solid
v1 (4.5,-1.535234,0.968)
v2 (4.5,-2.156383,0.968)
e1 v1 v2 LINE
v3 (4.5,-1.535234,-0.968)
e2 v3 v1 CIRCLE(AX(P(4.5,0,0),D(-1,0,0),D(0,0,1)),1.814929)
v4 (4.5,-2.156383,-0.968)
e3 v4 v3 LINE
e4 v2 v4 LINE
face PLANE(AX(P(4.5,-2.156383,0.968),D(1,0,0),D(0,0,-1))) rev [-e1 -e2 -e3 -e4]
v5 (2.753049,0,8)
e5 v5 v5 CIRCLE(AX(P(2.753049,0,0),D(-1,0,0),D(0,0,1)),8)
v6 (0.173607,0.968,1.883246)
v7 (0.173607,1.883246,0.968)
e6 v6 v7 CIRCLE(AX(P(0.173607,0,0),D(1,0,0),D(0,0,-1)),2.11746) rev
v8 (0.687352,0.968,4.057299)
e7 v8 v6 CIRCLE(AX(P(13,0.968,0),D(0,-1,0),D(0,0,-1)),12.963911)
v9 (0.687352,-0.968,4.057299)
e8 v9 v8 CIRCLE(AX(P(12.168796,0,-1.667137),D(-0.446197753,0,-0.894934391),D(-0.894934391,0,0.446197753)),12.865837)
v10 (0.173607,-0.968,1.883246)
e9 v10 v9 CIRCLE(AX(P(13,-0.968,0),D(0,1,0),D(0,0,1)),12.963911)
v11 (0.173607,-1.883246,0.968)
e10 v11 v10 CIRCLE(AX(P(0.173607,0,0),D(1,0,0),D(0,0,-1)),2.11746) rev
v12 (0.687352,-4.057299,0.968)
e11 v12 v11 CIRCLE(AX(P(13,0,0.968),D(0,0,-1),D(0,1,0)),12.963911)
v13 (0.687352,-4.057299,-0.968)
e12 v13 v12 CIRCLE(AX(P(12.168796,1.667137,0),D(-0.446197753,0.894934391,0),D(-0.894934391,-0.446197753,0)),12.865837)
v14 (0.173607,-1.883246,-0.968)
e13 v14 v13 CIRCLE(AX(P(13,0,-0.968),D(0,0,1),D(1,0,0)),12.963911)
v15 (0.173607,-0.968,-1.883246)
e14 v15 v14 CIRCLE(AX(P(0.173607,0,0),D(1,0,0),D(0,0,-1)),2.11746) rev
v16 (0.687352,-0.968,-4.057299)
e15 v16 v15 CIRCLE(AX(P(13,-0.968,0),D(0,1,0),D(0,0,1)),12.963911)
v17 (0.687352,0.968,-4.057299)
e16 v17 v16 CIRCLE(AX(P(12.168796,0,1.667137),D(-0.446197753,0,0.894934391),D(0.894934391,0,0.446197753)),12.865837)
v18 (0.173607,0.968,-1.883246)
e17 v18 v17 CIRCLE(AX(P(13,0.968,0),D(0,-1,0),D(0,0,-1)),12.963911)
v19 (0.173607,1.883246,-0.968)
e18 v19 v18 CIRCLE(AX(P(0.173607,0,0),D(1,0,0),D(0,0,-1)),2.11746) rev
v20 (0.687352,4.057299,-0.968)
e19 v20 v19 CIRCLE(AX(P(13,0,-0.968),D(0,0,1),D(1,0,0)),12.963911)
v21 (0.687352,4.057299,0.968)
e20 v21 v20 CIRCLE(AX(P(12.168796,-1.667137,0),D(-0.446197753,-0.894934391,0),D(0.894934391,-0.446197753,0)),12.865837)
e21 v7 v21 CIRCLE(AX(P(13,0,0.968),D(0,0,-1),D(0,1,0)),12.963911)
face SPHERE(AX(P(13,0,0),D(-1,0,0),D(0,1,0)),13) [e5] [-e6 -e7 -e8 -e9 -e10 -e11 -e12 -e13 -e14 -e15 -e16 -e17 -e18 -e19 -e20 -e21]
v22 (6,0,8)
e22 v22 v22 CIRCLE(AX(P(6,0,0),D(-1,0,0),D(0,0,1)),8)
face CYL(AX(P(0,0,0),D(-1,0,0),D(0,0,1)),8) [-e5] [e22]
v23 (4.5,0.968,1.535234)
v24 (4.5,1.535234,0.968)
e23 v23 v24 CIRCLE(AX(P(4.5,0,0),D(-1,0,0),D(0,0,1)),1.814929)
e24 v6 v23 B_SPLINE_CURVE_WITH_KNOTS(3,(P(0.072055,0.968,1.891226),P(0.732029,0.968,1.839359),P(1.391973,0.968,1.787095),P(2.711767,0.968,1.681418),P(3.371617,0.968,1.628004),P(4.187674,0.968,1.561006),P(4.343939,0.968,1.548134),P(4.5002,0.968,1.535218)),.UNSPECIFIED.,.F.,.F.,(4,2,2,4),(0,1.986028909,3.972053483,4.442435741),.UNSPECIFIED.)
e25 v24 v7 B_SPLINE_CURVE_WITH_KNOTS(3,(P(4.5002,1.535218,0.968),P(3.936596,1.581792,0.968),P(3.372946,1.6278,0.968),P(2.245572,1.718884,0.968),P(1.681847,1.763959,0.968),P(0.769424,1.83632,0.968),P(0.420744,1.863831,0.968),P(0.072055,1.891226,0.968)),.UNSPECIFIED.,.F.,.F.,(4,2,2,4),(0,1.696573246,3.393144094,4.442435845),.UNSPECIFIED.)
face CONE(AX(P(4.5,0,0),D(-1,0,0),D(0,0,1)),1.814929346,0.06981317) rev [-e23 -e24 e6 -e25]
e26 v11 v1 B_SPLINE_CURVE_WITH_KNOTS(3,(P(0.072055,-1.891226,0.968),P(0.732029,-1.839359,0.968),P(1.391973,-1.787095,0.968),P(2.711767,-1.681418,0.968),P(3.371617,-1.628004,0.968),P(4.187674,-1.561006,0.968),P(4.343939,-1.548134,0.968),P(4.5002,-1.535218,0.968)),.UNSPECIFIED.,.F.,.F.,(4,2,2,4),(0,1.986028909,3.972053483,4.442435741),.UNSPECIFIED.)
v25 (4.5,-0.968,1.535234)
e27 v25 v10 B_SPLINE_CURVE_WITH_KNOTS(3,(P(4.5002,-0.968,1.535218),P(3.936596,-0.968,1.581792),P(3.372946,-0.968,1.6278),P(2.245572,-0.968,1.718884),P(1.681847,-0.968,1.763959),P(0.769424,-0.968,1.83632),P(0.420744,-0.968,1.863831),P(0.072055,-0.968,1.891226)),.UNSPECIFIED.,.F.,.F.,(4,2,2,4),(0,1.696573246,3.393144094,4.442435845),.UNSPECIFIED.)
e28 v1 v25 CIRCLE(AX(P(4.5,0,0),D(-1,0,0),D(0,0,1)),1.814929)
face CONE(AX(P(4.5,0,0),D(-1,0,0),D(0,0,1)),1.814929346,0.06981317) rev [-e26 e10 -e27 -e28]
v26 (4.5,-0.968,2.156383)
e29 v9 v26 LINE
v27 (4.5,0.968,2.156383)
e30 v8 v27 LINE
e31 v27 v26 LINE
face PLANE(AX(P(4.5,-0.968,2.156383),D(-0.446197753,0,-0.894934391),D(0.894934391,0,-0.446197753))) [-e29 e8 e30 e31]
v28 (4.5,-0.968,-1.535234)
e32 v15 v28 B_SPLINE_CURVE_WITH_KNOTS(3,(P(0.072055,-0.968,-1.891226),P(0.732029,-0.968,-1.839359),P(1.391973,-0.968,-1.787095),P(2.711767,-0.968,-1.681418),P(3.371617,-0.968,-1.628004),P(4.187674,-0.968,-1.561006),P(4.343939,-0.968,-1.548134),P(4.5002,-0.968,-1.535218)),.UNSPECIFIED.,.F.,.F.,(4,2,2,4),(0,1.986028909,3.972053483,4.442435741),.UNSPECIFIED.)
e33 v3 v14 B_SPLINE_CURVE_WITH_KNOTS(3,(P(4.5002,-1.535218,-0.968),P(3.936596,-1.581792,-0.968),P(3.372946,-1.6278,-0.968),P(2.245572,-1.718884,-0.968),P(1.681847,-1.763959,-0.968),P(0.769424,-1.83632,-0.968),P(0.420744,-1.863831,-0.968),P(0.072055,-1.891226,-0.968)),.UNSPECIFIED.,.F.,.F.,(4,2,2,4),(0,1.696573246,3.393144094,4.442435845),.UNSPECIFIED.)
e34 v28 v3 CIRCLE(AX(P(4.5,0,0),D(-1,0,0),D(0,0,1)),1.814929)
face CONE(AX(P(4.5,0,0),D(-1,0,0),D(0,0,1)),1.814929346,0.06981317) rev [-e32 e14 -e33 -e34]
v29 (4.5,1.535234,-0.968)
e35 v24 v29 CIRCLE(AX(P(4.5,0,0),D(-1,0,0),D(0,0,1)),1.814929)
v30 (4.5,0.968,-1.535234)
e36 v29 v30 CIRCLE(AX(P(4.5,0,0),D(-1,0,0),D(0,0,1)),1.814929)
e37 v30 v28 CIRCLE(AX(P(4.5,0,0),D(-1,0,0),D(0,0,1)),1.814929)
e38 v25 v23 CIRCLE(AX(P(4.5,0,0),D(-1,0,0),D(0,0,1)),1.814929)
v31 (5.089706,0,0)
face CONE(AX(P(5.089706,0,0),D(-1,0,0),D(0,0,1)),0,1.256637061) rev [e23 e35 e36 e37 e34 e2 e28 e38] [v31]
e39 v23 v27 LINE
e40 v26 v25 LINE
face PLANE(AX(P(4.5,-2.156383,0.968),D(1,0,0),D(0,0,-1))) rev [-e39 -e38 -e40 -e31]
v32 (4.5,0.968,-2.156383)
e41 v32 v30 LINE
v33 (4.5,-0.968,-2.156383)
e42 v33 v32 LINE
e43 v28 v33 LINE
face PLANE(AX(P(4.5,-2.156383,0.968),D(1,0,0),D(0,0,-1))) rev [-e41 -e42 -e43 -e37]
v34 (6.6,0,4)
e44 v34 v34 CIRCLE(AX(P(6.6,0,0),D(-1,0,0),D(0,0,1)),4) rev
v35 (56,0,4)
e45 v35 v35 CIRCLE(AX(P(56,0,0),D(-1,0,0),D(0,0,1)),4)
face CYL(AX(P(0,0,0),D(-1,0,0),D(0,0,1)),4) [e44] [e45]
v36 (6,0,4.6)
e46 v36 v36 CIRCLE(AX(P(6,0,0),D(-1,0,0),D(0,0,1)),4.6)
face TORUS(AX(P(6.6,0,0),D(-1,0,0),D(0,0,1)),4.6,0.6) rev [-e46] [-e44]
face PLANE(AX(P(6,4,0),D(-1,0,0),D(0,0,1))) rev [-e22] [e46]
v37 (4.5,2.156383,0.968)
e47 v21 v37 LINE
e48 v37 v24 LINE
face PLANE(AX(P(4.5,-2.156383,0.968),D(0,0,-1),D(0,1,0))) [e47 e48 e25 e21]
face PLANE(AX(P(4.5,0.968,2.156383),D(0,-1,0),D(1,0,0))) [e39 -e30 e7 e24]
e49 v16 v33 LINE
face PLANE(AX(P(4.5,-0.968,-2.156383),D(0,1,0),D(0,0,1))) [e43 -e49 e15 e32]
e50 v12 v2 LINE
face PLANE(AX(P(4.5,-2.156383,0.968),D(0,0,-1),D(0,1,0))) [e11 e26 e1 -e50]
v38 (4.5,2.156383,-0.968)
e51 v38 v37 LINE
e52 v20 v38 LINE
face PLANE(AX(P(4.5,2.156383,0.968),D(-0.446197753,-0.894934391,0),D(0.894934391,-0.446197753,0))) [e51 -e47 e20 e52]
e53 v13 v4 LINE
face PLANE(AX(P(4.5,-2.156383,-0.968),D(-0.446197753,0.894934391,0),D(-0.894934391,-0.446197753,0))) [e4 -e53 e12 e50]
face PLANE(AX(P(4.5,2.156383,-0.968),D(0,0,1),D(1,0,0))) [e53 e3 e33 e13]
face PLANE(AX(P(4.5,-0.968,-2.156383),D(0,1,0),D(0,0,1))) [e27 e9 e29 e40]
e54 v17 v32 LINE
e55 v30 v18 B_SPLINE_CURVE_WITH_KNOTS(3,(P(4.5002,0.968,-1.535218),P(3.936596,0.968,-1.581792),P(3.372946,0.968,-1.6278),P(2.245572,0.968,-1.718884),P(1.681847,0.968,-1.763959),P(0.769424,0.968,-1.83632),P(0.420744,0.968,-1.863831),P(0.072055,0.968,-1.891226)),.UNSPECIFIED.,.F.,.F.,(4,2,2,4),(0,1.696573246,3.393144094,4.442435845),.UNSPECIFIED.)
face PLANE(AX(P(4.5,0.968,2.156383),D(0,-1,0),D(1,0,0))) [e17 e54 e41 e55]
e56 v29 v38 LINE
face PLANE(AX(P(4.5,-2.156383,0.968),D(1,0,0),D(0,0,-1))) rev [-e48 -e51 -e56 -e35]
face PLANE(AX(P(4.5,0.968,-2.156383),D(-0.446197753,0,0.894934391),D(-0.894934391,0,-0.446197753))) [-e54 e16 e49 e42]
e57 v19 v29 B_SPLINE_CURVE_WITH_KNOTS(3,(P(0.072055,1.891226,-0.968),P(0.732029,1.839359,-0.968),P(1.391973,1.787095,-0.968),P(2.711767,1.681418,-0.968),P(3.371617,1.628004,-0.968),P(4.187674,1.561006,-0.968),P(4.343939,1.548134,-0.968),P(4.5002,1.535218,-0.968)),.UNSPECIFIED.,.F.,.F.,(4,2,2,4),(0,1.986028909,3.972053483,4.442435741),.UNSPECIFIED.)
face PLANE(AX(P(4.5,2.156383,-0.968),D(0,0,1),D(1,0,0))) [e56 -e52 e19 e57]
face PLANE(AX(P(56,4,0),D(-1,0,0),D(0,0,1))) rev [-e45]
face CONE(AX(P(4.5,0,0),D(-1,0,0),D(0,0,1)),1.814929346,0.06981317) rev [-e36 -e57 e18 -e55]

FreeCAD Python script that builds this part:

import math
import FreeCAD as App
import Part
import Sketcher
Q = App.Units.Quantity


def edges_at(feature, points):
    """Names of the edges that pass closest to the given points."""
    edges = feature.Shape.Edges
    near = lambda p: min(range(len(edges)), key=lambda i: edges[i].distToShape(Part.Vertex(*p))[0])
    return sorted({f"Edge{near(p) + 1}" for p in points})

doc = App.newDocument("Part")
params = doc.addObject("Spreadsheet::Sheet", "Params")
for row, (alias, value) in enumerate([
    ("sketch1_radius", "13 mm"),
    ("sketch1_width", "56 mm"),
    ("sketch1_width2", "50 mm"),
    ("sketch1_height", "4 mm"),
    ("revolution_angle", "360 deg"),
    ("fillet_radius", "0.6 mm"),
    ("sketch2_width", "8.8 mm"),
    ("groove_angle", "360 deg"),
], start=1):
    params.set(f"A{row}", alias)
    params.set(f"B{row}", "=" + value)
    params.setAlias(f"B{row}", alias)

body = doc.addObject("PartDesign::Body", "Body")

sketch1 = body.newObject("Sketcher::SketchObject", "Sketch")
sketch1.AttachmentSupport = (doc.getObject("XY_Plane"), [""])
sketch1.MapMode = "FlatFace"
sketch1.addGeometry(Part.LineSegment(App.Vector(6, 4, 0), App.Vector(6, 8, 0)), False)
sketch1.addGeometry(Part.LineSegment(App.Vector(6, 8, 0), App.Vector(2.8, 8, 0)), False)
sketch1.addGeometry(Part.ArcOfCircle(Part.Circle(App.Vector(13, 0, 0), App.Vector(0, 0, 1), 13), math.radians(142), math.radians(180)), False)
sketch1.addGeometry(Part.LineSegment(App.Vector(0, 0, 0), App.Vector(56, 0, 0)), False)
sketch1.addGeometry(Part.LineSegment(App.Vector(56, 0, 0), App.Vector(56, 4, 0)), False)
sketch1.addGeometry(Part.LineSegment(App.Vector(56, 4, 0), App.Vector(6, 4, 0)), False)
sketch1.addConstraint(Sketcher.Constraint("Coincident", 0, 2, 1, 1))
sketch1.addConstraint(Sketcher.Constraint("Coincident", 1, 2, 2, 1))
sketch1.addConstraint(Sketcher.Constraint("Coincident", 2, 2, 3, 1))
sketch1.addConstraint(Sketcher.Constraint("Coincident", 3, 2, 4, 1))
sketch1.addConstraint(Sketcher.Constraint("Coincident", 4, 2, 5, 1))
sketch1.addConstraint(Sketcher.Constraint("Coincident", 5, 2, 0, 1))
sketch1.addConstraint(Sketcher.Constraint("Vertical", 0))
sketch1.addConstraint(Sketcher.Constraint("Horizontal", 1))
sketch1.addConstraint(Sketcher.Constraint("Horizontal", 3))
sketch1.addConstraint(Sketcher.Constraint("Vertical", 4))
sketch1.addConstraint(Sketcher.Constraint("Horizontal", 5))
sketch1.addConstraint(Sketcher.Constraint("Coincident", 2, 2, -1, 1))
sketch1.addConstraint(Sketcher.Constraint("PointOnObject", 2, 3, -1))
sketch1.addConstraint(Sketcher.Constraint("Equal", 0, 4))
sketch1.addConstraint(Sketcher.Constraint("Radius", 2, 13.0))
sketch1.addConstraint(Sketcher.Constraint("DistanceX", 3, 1, 3, 2, 56.0))
sketch1.addConstraint(Sketcher.Constraint("DistanceX", 5, 2, 5, 1, 50.0))
sketch1.addConstraint(Sketcher.Constraint("DistanceY", 0, 1, 0, 2, 4.0))
sketch1.setExpression("Constraints[14]", "Params.sketch1_radius")
sketch1.setExpression("Constraints[15]", "Params.sketch1_width")
sketch1.setExpression("Constraints[16]", "Params.sketch1_width2")
sketch1.setExpression("Constraints[17]", "Params.sketch1_height")
revolution = body.newObject("PartDesign::Revolution", "Revolution")
revolution.Profile = sketch1
revolution.ReferenceAxis = (sketch1, ["H_Axis"])
revolution.setExpression("Angle", "Params.revolution_angle")
doc.recompute()

fillet = body.newObject("PartDesign::Fillet", "Fillet")
fillet.Base = (revolution, edges_at(revolution, [(6, 0, -4)]))
fillet.setExpression("Radius", "Params.fillet_radius")

sketch2 = body.newObject("Sketcher::SketchObject", "Sketch001")
sketch2.AttachmentSupport = (doc.getObject("YZ_Plane"), [""])
sketch2.MapMode = "FlatFace"
sketch2.addGeometry(Part.LineSegment(App.Vector(4.4, -1, 0), App.Vector(4.4, 1, 0)), False)
sketch2.addGeometry(Part.LineSegment(App.Vector(4.4, 1, 0), App.Vector(-4.4, 1, 0)), False)
sketch2.addGeometry(Part.LineSegment(App.Vector(-4.4, 1, 0), App.Vector(-4.4, -1, 0)), False)
sketch2.addGeometry(Part.LineSegment(App.Vector(-4.4, -1, 0), App.Vector(4.4, -1, 0)), False)
sketch2.addConstraint(Sketcher.Constraint("Coincident", 0, 2, 1, 1))
sketch2.addConstraint(Sketcher.Constraint("Coincident", 1, 2, 2, 1))
sketch2.addConstraint(Sketcher.Constraint("Coincident", 2, 2, 3, 1))
sketch2.addConstraint(Sketcher.Constraint("Coincident", 3, 2, 0, 1))
sketch2.addConstraint(Sketcher.Constraint("Vertical", 0))
sketch2.addConstraint(Sketcher.Constraint("Horizontal", 1))
sketch2.addConstraint(Sketcher.Constraint("Vertical", 2))
sketch2.addConstraint(Sketcher.Constraint("Horizontal", 3))
sketch2.addConstraint(Sketcher.Constraint("Symmetric", 0, 2, 2, 2, -1, 1))
sketch2.addConstraint(Sketcher.Constraint("DistanceX", 1, 2, 1, 1, 8.8))
sketch2.addConstraint(Sketcher.Constraint("DistanceY", 0, 1, 0, 2, 1.936))
sketch2.setExpression("Constraints[9]", "Params.sketch2_width")

sketch3 = body.newObject("Sketcher::SketchObject", "Sketch002")
sketch3.AttachmentSupport = (doc.getObject("YZ_Plane"), [""])
sketch3.MapMode = "FlatFace"
sketch3.AttachmentOffset = App.Placement(App.Vector(0, 0, 4.5), App.Rotation())
sketch3.addGeometry(Part.LineSegment(App.Vector(2.2, -1, 0), App.Vector(2.2, 1, 0)), False)
sketch3.addGeometry(Part.LineSegment(App.Vector(2.2, 1, 0), App.Vector(-2.2, 1, 0)), False)
sketch3.addGeometry(Part.LineSegment(App.Vector(-2.2, 1, 0), App.Vector(-2.2, -1, 0)), False)
sketch3.addGeometry(Part.LineSegment(App.Vector(-2.2, -1, 0), App.Vector(2.2, -1, 0)), False)
sketch3.addConstraint(Sketcher.Constraint("Coincident", 0, 2, 1, 1))
sketch3.addConstraint(Sketcher.Constraint("Coincident", 1, 2, 2, 1))
sketch3.addConstraint(Sketcher.Constraint("Coincident", 2, 2, 3, 1))
sketch3.addConstraint(Sketcher.Constraint("Coincident", 3, 2, 0, 1))
sketch3.addConstraint(Sketcher.Constraint("Vertical", 0))
sketch3.addConstraint(Sketcher.Constraint("Horizontal", 1))
sketch3.addConstraint(Sketcher.Constraint("Vertical", 2))
sketch3.addConstraint(Sketcher.Constraint("Horizontal", 3))
sketch3.addConstraint(Sketcher.Constraint("Symmetric", 0, 2, 2, 2, -1, 1))
sketch3.addConstraint(Sketcher.Constraint("DistanceY", 0, 1, 0, 2, 1.936))
sketch3.addConstraint(Sketcher.Constraint("DistanceX", 1, 2, 1, 1, 4.312766))

subtractiveloft = body.newObject("PartDesign::SubtractiveLoft", "SubtractiveLoft")
subtractiveloft.Profile = sketch2
subtractiveloft.Sections = [sketch3]
doc.recompute()

polarpattern = body.newObject("PartDesign::PolarPattern", "PolarPattern")
polarpattern.Originals = [subtractiveloft]
polarpattern.Axis = (doc.getObject("X_Axis"), [""])
polarpattern.Angle = 90
polarpattern.Occurrences = 2
body.Tip = polarpattern

sketch4 = body.newObject("Sketcher::SketchObject", "Sketch003")
sketch4.AttachmentSupport = (doc.getObject("XY_Plane"), [""])
sketch4.MapMode = "FlatFace"
sketch4.addGeometry(Part.LineSegment(App.Vector(0, 2.1, 0), App.Vector(0, 0, 0)), False)
sketch4.addGeometry(Part.LineSegment(App.Vector(0, 0, 0), App.Vector(5.1, 0, 0)), False)
sketch4.addGeometry(Part.LineSegment(App.Vector(5.1, 0, 0), App.Vector(4.5, 1.8, 0)), False)
sketch4.addGeometry(Part.LineSegment(App.Vector(4.5, 1.8, 0), App.Vector(0, 2.1, 0)), False)
sketch4.addConstraint(Sketcher.Constraint("Coincident", 0, 2, 1, 1))
sketch4.addConstraint(Sketcher.Constraint("Coincident", 1, 2, 2, 1))
sketch4.addConstraint(Sketcher.Constraint("Coincident", 2, 2, 3, 1))
sketch4.addConstraint(Sketcher.Constraint("Coincident", 3, 2, 0, 1))
sketch4.addConstraint(Sketcher.Constraint("Vertical", 0))
sketch4.addConstraint(Sketcher.Constraint("Horizontal", 1))
sketch4.addConstraint(Sketcher.Constraint("Coincident", 0, 2, -1, 1))
sketch4.addConstraint(Sketcher.Constraint("Angle", 2, Q("108 deg")))
sketch4.addConstraint(Sketcher.Constraint("Angle", 3, Q("176 deg")))
sketch4.addConstraint(Sketcher.Constraint("DistanceX", -1, 1, 2, 2, 4.5))
sketch4.addConstraint(Sketcher.Constraint("DistanceY", 0, 2, 0, 1, 2.1296))
groove = body.newObject("PartDesign::Groove", "Groove")
groove.Profile = sketch4
groove.ReferenceAxis = (sketch4, ["H_Axis"])
groove.setExpression("Angle", "Params.groove_angle")

doc.recompute()
